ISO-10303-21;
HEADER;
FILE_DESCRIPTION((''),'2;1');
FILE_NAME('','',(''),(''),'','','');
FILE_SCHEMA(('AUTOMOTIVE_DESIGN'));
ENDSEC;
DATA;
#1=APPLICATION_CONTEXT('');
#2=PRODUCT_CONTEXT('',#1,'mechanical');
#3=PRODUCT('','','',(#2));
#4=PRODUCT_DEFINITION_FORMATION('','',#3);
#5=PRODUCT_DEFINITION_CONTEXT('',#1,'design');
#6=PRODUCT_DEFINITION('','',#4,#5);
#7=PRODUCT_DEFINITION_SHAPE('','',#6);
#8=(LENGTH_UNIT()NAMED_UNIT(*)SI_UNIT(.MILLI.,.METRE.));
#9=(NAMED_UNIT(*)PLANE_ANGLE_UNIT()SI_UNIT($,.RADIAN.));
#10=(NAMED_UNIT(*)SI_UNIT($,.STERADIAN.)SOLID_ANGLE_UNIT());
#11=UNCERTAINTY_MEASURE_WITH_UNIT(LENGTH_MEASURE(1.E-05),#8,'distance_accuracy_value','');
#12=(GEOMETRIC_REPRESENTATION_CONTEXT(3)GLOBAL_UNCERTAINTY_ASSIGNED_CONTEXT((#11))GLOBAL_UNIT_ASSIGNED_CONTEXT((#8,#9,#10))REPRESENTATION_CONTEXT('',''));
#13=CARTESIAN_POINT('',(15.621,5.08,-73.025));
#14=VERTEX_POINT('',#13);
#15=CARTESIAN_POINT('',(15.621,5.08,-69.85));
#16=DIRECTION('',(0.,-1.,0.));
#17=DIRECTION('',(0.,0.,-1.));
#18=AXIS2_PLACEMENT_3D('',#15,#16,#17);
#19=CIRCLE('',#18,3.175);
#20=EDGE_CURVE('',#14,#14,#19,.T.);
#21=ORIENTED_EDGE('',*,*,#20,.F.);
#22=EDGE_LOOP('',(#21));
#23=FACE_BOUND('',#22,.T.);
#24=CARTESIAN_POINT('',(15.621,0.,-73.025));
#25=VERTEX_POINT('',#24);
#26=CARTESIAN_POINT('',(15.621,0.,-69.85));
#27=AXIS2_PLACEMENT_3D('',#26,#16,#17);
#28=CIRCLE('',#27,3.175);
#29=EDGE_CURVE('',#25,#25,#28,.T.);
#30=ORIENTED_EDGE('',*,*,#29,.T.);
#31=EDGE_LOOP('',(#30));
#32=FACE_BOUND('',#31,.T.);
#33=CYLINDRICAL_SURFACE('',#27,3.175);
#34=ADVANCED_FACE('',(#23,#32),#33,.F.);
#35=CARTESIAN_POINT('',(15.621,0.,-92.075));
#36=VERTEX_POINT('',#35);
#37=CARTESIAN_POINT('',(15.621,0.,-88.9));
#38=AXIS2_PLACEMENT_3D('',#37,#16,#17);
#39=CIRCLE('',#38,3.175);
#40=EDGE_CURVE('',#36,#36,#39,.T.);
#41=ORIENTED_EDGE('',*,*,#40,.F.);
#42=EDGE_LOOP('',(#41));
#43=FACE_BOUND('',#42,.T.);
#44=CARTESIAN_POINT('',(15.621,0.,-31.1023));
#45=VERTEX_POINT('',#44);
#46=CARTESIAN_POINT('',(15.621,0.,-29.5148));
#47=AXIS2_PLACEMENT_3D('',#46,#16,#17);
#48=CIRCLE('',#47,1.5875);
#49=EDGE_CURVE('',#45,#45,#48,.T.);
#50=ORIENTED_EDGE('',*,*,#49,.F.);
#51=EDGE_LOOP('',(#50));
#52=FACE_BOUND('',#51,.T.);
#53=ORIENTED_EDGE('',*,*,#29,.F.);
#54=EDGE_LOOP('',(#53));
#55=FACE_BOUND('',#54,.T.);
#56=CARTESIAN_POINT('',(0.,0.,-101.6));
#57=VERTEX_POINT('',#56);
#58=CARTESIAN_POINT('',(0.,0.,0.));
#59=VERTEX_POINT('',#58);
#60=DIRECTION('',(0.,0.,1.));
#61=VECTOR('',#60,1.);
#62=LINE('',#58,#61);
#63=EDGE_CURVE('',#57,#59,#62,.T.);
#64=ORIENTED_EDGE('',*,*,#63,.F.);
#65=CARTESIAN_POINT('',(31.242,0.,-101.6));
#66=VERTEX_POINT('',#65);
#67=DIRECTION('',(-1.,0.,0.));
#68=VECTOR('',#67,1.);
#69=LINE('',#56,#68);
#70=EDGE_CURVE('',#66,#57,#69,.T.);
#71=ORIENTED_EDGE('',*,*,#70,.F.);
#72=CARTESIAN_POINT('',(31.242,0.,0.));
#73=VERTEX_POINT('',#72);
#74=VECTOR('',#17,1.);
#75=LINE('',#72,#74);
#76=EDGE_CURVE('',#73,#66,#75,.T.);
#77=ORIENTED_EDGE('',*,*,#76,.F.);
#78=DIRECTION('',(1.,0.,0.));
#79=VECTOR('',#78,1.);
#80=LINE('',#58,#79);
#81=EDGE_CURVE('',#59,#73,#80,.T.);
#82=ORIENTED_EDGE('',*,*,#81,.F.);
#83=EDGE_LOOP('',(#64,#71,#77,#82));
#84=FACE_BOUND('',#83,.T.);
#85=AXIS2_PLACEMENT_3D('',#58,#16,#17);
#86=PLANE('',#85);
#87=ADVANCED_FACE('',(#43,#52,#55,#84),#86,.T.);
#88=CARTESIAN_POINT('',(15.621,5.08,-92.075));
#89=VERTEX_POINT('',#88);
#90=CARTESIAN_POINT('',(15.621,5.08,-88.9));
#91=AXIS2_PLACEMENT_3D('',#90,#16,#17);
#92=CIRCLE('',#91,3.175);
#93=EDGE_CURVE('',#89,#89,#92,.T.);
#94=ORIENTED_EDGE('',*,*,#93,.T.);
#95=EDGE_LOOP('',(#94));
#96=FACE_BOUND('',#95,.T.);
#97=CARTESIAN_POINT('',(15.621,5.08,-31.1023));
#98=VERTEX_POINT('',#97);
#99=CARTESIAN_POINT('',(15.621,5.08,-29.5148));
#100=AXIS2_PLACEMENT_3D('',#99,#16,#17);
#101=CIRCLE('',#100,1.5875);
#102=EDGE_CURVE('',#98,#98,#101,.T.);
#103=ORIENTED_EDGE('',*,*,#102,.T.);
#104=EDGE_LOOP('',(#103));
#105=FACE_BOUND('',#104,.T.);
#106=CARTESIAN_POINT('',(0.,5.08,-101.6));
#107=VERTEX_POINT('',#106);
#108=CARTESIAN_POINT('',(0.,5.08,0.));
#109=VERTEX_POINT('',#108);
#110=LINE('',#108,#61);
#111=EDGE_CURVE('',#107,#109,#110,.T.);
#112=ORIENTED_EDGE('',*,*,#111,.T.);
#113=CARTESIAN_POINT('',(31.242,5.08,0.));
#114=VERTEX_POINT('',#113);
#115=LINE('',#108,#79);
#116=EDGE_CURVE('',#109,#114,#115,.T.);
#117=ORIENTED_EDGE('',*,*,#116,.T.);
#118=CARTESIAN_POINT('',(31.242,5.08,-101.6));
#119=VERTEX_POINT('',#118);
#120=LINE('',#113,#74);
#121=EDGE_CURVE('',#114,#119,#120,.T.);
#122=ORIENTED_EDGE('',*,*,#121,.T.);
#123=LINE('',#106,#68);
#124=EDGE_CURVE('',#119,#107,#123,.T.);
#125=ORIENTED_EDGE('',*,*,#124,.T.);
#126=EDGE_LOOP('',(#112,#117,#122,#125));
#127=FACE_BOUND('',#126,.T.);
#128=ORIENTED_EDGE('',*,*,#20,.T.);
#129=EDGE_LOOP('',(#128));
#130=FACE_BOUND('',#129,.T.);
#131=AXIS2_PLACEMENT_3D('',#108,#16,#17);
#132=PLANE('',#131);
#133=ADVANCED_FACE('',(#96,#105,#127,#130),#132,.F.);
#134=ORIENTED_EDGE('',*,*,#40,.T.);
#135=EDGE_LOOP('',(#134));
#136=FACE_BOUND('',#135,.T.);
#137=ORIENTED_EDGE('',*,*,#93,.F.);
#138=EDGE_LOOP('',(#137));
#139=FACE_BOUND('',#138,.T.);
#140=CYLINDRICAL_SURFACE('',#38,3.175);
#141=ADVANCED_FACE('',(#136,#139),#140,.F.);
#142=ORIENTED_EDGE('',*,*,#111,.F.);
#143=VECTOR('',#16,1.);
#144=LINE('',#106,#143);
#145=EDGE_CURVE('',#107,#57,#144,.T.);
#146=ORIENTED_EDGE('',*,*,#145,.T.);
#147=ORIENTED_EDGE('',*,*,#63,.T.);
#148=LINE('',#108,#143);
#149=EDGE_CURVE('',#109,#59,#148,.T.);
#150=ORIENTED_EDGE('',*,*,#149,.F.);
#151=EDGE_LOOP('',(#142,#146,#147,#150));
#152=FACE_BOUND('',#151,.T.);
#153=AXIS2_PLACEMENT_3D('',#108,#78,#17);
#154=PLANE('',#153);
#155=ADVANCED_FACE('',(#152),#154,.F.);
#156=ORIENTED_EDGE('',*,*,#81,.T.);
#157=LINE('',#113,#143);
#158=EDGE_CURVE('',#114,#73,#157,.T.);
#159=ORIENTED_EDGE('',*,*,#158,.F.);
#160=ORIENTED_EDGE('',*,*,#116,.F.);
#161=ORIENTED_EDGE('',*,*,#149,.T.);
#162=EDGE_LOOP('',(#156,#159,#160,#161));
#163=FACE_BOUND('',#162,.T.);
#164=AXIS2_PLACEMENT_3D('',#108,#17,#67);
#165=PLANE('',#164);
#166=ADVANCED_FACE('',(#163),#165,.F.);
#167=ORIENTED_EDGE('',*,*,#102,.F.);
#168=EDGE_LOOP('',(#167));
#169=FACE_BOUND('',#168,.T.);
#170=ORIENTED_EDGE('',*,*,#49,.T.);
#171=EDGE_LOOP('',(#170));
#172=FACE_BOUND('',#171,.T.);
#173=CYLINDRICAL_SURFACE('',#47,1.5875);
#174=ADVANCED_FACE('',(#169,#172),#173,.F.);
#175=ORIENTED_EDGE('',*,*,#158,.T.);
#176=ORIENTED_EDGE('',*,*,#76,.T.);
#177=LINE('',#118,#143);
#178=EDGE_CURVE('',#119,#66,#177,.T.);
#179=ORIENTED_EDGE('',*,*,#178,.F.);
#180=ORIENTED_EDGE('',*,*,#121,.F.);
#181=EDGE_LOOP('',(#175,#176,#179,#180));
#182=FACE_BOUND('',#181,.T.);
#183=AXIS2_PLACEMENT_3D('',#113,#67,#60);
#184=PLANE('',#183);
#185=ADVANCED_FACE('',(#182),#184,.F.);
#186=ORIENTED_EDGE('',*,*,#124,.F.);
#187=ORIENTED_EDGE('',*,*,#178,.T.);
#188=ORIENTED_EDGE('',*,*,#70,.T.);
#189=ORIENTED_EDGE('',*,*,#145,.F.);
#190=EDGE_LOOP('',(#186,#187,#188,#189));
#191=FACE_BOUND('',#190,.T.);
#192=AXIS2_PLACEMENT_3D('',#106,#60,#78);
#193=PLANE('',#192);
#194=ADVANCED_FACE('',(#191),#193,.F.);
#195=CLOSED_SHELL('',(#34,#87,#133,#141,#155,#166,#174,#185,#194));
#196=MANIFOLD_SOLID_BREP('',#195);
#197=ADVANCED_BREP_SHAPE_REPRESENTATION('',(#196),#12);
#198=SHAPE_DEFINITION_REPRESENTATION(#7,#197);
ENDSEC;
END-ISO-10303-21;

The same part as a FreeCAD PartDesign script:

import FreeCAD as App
import Part
import Sketcher

V = App.Vector
Q = App.Units.Quantity

doc = App.newDocument("Part")
body = doc.addObject("PartDesign::Body", "Body")

sketch1 = body.newObject("Sketcher::SketchObject", "Sketch")
sketch1.AttachmentSupport = (doc.getObject("XZ_Plane"), [""])
sketch1.MapMode = "FlatFace"
sketch1.addGeometry([
    Part.LineSegment(V(0, -102, 0), V(0, 0, 0)),
    Part.LineSegment(V(0, 0, 0), V(31, 0, 0)),
    Part.LineSegment(V(31, 0, 0), V(31, -102, 0)),
    Part.LineSegment(V(31, -102, 0), V(0, -102, 0)),
], False)
sketch1.addConstraint([
    Sketcher.Constraint("Coincident", 0, 2, 1, 1),
    Sketcher.Constraint("Coincident", 1, 2, 2, 1),
    Sketcher.Constraint("Coincident", 2, 2, 3, 1),
    Sketcher.Constraint("Coincident", 3, 2, 0, 1),
    Sketcher.Constraint("Vertical", 0),
    Sketcher.Constraint("Horizontal", 1),
    Sketcher.Constraint("Vertical", 2),
    Sketcher.Constraint("Horizontal", 3),
    Sketcher.Constraint("Coincident", 0, 2, -1, 1),
    Sketcher.Constraint("DistanceY", 0, 1, 0, 2, Q("4 in")),
    Sketcher.Constraint("DistanceX", 1, 1, 1, 2, Q("1.23 in")),
])
pad1 = body.newObject("PartDesign::Pad", "Pad")
pad1.Profile = sketch1
pad1.Length = Q("0.2 in")
pad1.Reversed = True

sketch2 = body.newObject("Sketcher::SketchObject", "Sketch001")
sketch2.AttachmentSupport = (doc.getObject("XZ_Plane"), [""])
sketch2.MapMode = "FlatFace"
sketch2.addGeometry([
    Part.Circle(V(15.6, -69.8, 0), V(0, 0, 1), 3.2),
    Part.Circle(V(15.6, -88.9, 0), V(0, 0, 1), 3.2),
], False)
sketch2.addConstraint([
    Sketcher.Constraint("Equal", 0, 1),
    Sketcher.Constraint("Vertical", 0, 3, 1, 3),
    Sketcher.Constraint("Diameter", 0, Q("0.25 in")),
    Sketcher.Constraint("DistanceY", 1, 3, -1, 1, Q("3.5 in")),
    Sketcher.Constraint("DistanceY", 0, 3, -1, 1, Q("2.75 in")),
    Sketcher.Constraint("DistanceX", -1, 1, 0, 3, Q("0.615 in")),
])
doc.recompute()
hole = body.newObject("PartDesign::Hole", "Hole")
hole.Profile = sketch2
hole.ThreadType = "None"
hole.Diameter = Q("0.25 in")
hole.DepthType = "ThroughAll"

sketch3 = body.newObject("Sketcher::SketchObject", "Sketch002")
sketch3.AttachmentSupport = (doc.getObject("XZ_Plane"), [""])
sketch3.MapMode = "FlatFace"
sketch3.addGeometry(Part.Circle(V(15.6, -29.5, 0), V(0, 0, 1), 1.6), False)
sketch3.addConstraint([
    Sketcher.Constraint("Diameter", 0, Q("0.125 in")),
    Sketcher.Constraint("DistanceX", -1, 1, 0, 3, Q("0.615 in")),
    Sketcher.Constraint("DistanceY", 0, 3, -1, 1, Q("1.162 in")),
])
doc.recompute()
hole2 = body.newObject("PartDesign::Hole", "Hole001")
hole2.Profile = sketch3
hole2.ThreadType = "None"
hole2.Diameter = Q("0.125 in")
hole2.DepthType = "ThroughAll"

doc.recompute()
